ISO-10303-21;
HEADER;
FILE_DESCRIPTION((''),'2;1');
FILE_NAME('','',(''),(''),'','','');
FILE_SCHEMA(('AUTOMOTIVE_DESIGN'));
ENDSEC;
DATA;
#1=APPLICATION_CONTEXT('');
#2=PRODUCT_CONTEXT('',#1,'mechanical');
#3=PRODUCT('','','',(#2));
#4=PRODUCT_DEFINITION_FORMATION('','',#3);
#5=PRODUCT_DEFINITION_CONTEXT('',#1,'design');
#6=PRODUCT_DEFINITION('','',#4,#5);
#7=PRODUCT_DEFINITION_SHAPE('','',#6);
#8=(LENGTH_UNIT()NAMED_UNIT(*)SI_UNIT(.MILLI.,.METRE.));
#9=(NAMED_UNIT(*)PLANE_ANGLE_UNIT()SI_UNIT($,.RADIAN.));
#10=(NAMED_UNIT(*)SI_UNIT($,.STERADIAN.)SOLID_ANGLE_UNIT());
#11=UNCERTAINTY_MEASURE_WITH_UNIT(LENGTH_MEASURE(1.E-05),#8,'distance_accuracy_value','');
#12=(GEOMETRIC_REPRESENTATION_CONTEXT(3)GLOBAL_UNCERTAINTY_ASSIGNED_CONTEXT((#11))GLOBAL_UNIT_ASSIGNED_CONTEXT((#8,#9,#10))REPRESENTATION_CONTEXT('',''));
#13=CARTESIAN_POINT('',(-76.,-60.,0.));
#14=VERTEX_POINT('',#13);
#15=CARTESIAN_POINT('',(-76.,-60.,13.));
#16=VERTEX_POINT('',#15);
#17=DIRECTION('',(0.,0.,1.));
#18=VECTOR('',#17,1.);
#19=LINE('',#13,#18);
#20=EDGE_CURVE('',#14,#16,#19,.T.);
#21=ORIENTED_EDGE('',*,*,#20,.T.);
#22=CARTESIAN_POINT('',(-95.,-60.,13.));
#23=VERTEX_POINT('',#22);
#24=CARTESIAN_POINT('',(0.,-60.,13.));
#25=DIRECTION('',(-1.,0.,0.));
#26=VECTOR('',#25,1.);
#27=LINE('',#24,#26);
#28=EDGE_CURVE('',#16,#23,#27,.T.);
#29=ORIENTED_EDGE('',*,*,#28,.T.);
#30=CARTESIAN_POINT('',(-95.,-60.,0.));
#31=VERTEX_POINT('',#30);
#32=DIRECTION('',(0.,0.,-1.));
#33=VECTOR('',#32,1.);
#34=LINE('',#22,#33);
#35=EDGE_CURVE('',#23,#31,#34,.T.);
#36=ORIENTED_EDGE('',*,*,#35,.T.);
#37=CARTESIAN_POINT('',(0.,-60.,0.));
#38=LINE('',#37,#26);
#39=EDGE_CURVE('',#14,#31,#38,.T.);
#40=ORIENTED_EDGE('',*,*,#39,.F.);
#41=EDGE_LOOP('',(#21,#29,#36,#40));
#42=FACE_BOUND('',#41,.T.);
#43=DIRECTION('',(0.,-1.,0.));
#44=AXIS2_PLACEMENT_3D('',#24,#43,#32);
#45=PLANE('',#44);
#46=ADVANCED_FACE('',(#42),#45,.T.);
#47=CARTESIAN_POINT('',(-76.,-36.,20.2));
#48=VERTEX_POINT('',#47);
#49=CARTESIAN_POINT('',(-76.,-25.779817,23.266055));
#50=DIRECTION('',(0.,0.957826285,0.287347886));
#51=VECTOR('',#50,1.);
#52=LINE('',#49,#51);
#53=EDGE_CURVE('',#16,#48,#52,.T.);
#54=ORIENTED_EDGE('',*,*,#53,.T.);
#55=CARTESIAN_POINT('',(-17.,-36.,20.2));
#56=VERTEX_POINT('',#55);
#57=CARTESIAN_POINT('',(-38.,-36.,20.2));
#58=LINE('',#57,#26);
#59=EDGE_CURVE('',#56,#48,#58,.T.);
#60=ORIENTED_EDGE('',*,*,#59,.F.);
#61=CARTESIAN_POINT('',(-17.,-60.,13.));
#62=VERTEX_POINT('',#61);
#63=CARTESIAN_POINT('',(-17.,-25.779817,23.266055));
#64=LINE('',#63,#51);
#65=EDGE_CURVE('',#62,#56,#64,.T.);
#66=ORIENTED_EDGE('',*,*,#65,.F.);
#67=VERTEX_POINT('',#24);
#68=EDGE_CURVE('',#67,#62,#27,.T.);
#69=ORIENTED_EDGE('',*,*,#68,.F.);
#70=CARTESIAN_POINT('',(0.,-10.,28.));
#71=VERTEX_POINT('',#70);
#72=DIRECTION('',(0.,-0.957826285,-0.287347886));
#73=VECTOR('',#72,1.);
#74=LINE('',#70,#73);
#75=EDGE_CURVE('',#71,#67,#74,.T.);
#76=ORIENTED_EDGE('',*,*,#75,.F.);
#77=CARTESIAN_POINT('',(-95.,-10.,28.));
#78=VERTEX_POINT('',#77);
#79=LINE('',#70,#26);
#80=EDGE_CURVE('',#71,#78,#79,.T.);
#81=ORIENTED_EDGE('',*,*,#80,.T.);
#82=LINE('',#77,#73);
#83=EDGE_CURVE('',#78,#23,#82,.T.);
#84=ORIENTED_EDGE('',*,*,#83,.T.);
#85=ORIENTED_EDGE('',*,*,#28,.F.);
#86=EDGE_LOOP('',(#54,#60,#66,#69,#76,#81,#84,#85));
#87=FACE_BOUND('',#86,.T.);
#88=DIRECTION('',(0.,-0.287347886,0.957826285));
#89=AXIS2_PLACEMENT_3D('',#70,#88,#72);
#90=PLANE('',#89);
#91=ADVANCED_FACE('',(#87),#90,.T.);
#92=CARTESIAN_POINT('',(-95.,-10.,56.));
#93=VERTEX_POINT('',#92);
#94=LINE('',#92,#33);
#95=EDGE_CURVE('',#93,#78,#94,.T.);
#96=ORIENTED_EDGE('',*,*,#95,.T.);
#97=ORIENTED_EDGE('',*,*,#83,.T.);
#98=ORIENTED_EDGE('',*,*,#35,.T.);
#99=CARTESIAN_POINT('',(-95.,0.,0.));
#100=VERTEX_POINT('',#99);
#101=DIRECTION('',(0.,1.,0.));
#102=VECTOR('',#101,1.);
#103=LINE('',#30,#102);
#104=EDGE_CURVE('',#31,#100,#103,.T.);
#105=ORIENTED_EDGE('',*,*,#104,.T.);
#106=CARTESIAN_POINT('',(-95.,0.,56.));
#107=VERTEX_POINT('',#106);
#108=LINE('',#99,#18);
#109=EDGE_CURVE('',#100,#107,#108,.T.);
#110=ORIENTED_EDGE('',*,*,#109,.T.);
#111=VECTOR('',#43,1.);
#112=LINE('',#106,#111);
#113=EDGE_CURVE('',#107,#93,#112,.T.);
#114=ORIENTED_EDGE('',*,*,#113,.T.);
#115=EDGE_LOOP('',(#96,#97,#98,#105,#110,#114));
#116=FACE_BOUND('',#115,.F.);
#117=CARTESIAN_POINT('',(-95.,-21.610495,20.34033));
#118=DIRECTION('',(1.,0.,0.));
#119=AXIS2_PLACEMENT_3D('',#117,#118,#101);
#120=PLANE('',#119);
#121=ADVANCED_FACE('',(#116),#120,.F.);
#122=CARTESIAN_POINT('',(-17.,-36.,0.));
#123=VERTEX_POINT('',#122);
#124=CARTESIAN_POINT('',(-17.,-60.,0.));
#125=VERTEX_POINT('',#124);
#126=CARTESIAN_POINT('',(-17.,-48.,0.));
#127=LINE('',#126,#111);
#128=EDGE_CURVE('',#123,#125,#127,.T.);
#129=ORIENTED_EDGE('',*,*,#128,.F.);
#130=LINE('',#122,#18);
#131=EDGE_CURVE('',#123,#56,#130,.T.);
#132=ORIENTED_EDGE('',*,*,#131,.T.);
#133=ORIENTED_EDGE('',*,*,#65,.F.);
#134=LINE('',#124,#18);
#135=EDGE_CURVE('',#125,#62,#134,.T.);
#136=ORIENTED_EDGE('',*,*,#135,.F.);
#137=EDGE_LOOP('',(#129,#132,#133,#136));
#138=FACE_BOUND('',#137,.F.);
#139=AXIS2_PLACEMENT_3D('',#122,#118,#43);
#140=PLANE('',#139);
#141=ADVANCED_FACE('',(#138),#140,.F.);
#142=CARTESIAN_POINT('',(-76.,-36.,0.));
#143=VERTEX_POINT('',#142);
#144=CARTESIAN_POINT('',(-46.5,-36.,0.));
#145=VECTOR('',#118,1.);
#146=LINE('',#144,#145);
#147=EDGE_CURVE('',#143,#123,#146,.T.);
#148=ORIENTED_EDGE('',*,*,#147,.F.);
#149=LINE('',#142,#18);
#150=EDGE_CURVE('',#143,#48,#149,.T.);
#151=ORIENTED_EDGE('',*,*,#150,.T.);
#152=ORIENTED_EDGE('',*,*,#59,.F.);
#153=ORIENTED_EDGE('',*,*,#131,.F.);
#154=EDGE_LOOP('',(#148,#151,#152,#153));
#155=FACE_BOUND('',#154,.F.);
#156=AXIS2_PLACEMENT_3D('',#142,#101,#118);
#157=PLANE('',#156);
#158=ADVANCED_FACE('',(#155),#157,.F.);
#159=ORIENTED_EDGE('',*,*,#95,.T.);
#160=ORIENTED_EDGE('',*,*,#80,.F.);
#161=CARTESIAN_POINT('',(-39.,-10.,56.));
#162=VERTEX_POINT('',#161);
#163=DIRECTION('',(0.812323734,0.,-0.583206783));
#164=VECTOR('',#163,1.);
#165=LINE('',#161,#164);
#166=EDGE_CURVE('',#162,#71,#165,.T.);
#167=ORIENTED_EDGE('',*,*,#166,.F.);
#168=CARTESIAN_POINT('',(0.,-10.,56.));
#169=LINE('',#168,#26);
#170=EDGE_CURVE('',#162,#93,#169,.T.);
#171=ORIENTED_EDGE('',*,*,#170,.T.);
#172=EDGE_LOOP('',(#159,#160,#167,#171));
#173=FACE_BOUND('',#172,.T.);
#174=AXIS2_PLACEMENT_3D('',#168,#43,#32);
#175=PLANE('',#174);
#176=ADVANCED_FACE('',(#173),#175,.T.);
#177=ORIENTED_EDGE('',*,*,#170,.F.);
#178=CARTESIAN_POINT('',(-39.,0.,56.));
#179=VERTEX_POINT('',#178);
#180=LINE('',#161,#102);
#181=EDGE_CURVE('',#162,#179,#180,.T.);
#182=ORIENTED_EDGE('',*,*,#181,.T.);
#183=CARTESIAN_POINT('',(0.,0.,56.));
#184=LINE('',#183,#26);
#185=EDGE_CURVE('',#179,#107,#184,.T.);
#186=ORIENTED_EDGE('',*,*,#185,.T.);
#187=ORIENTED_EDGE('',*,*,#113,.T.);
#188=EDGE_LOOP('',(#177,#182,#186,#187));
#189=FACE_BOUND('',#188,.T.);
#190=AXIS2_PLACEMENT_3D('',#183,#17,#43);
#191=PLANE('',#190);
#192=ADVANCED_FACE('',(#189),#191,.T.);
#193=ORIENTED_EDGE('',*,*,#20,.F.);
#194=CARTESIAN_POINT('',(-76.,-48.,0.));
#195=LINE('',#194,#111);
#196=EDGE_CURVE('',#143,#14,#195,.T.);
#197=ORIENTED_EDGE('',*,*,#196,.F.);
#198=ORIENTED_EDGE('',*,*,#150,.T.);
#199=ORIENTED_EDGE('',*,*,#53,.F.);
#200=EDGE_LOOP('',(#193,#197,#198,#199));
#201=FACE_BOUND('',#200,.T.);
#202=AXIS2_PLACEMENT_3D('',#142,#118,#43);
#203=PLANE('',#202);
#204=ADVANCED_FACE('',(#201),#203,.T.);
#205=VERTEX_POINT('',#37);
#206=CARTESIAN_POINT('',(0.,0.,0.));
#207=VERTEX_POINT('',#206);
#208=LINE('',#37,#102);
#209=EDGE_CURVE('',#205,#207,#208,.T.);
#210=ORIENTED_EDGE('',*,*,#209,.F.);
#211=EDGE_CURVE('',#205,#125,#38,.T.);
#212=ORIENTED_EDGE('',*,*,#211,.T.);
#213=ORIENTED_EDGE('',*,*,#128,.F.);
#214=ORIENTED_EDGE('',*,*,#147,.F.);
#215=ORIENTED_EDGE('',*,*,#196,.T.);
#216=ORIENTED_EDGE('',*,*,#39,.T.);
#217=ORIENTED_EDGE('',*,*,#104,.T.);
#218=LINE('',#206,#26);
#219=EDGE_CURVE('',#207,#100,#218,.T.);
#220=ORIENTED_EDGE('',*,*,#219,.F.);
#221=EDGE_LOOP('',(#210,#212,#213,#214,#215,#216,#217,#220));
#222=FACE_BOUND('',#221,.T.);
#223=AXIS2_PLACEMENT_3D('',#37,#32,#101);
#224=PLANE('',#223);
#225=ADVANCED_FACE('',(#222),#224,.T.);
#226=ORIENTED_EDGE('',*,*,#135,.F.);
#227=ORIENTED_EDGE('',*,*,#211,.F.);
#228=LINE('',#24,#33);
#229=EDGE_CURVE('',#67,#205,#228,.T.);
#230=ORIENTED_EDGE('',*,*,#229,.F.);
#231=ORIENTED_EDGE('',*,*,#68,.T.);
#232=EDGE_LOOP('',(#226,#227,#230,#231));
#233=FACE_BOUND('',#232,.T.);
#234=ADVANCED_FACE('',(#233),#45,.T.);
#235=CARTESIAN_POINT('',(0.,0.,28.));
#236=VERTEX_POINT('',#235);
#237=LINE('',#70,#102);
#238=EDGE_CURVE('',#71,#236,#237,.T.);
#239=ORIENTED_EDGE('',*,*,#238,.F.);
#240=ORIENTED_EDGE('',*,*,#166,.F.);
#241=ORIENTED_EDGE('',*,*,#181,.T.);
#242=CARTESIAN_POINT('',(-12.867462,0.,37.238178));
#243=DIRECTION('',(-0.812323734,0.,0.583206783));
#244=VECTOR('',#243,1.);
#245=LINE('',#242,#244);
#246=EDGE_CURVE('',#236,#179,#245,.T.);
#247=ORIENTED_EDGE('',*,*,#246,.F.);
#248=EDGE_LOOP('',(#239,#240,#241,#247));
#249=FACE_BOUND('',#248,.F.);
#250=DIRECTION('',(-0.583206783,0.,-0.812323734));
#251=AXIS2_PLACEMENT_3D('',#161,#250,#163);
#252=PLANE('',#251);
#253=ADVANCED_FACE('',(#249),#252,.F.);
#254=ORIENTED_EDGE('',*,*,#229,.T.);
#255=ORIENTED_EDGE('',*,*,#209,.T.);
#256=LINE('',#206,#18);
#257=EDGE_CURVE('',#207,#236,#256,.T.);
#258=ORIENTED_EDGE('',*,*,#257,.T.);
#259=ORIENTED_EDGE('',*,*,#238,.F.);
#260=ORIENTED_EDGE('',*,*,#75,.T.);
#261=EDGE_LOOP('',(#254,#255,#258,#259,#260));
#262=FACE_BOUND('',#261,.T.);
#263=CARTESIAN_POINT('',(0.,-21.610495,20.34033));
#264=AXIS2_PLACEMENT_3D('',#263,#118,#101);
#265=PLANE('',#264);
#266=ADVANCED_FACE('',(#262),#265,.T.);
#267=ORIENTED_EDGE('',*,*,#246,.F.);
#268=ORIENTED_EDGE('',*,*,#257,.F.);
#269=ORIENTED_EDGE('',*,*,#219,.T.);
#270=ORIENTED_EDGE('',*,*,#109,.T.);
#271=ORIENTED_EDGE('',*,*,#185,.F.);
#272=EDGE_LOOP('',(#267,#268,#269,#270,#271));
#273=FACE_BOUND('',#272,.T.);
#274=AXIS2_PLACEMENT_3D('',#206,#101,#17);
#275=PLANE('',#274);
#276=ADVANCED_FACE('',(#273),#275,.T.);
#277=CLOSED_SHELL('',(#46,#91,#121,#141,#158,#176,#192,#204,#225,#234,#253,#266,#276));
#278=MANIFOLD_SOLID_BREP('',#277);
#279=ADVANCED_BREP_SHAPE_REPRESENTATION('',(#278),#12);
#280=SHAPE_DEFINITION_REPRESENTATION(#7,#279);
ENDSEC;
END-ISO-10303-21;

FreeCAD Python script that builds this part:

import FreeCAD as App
import Part
import Sketcher
Q = App.Units.Quantity

doc = App.newDocument("Part")
body = doc.addObject("PartDesign::Body", "Body")

# Sketch on YZ plane
sketch1 = body.newObject("Sketcher::SketchObject", "Sketch")
sketch1.AttachmentSupport = (doc.getObject("YZ_Plane"), [""])
sketch1.MapMode = "FlatFace"
sketch1.addGeometry([
    Part.LineSegment(App.Vector(-60, 0, 0), App.Vector(0, 0, 0)),  # 0
    Part.LineSegment(App.Vector(0, 0, 0), App.Vector(0, 56, 0)),  # 1
    Part.LineSegment(App.Vector(0, 56, 0), App.Vector(-10, 56, 0)),  # 2
    Part.LineSegment(App.Vector(-10, 56, 0), App.Vector(-10, 28, 0)),  # 3
    Part.LineSegment(App.Vector(-10, 28, 0), App.Vector(-60, 13, 0)),  # 4
    Part.LineSegment(App.Vector(-60, 13, 0), App.Vector(-60, 0, 0)),  # 5
], False)
sketch1.addConstraint([
    Sketcher.Constraint("Coincident", 0, 2, 1, 1),
    Sketcher.Constraint("Coincident", 1, 2, 2, 1),
    Sketcher.Constraint("Coincident", 2, 2, 3, 1),
    Sketcher.Constraint("Coincident", 3, 2, 4, 1),
    Sketcher.Constraint("Coincident", 4, 2, 5, 1),
    Sketcher.Constraint("Coincident", 5, 2, 0, 1),
    Sketcher.Constraint("Horizontal", 0),
    Sketcher.Constraint("Vertical", 1),
    Sketcher.Constraint("Horizontal", 2),
    Sketcher.Constraint("Vertical", 3),
    Sketcher.Constraint("Vertical", 5),
    Sketcher.Constraint("Coincident", 0, 2, -1, 1),
    Sketcher.Constraint("DistanceX", 0, 1, 0, 2, Q("60 mm")),
    Sketcher.Constraint("DistanceX", 2, 2, 2, 1, Q("10 mm")),
    Sketcher.Constraint("DistanceY", 1, 1, 1, 2, Q("56 mm")),
    Sketcher.Constraint("DistanceY", 3, 2, 3, 1, Q("28 mm")),
    Sketcher.Constraint("DistanceY", 5, 2, 5, 1, Q("13 mm")),
])
pad1 = body.newObject("PartDesign::Pad", "Pad")
pad1.Profile = sketch1
pad1.Length = 95
pad1.Reversed = True

# Sketch on XZ plane
sketch2 = body.newObject("Sketcher::SketchObject", "Sketch001")
sketch2.AttachmentSupport = (doc.getObject("XZ_Plane"), [""])
sketch2.MapMode = "FlatFace"
sketch2.AttachmentOffset = App.Placement(App.Vector(0, 0, 10), App.Rotation())
sketch2.addGeometry([
    Part.LineSegment(App.Vector(-39, 56, 0), App.Vector(0, 28, 0)),
    Part.LineSegment(App.Vector(0, 28, 0), App.Vector(0, 56, 0)),
    Part.LineSegment(App.Vector(0, 56, 0), App.Vector(-39, 56, 0)),
], False)
sketch2.addConstraint([
    Sketcher.Constraint("Coincident", 0, 2, 1, 1),
    Sketcher.Constraint("Coincident", 1, 2, 2, 1),
    Sketcher.Constraint("Coincident", 2, 2, 0, 1),
    Sketcher.Constraint("Vertical", 1),
    Sketcher.Constraint("Horizontal", 2),
    Sketcher.Constraint("PointOnObject", 0, 2, -2),
    Sketcher.Constraint("DistanceX", 2, 2, 2, 1, Q("39 mm")),
    Sketcher.Constraint("DistanceY", 1, 1, 1, 2, Q("28 mm")),
    Sketcher.Constraint("DistanceY", -1, 1, 0, 2, Q("28 mm")),
])
pocket1 = body.newObject("PartDesign::Pocket", "Pocket")
pocket1.Profile = sketch2
pocket1.Length = 45.5

# Sketch on XY plane
sketch3 = body.newObject("Sketcher::SketchObject", "Sketch002")
sketch3.AttachmentSupport = (doc.getObject("XY_Plane"), [""])
sketch3.MapMode = "FlatFace"
sketch3.addGeometry([
    Part.LineSegment(App.Vector(-76, -60, 0), App.Vector(-76, -36, 0)),
    Part.LineSegment(App.Vector(-76, -36, 0), App.Vector(-17, -36, 0)),
    Part.LineSegment(App.Vector(-17, -36, 0), App.Vector(-17, -60, 0)),
    Part.LineSegment(App.Vector(-17, -60, 0), App.Vector(-76, -60, 0)),
], False)
sketch3.addConstraint([
    Sketcher.Constraint("Coincident", 0, 2, 1, 1),
    Sketcher.Constraint("Coincident", 1, 2, 2, 1),
    Sketcher.Constraint("Coincident", 2, 2, 3, 1),
    Sketcher.Constraint("Coincident", 3, 2, 0, 1),
    Sketcher.Constraint("Vertical", 0),
    Sketcher.Constraint("Horizontal", 1),
    Sketcher.Constraint("Vertical", 2),
    Sketcher.Constraint("Horizontal", 3),
    Sketcher.Constraint("DistanceX", 1, 1, 1, 2, Q("59 mm")),
    Sketcher.Constraint("DistanceY", 0, 1, 0, 2, Q("24 mm")),
    Sketcher.Constraint("DistanceX", 0, 2, -1, 1, Q("76 mm")),
    Sketcher.Constraint("DistanceY", 0, 2, -1, 1, Q("36 mm")),
])
pocket2 = body.newObject("PartDesign::Pocket", "Pocket001")
pocket2.Profile = sketch3
pocket2.Length = 95
pocket2.Reversed = True

doc.recompute()
